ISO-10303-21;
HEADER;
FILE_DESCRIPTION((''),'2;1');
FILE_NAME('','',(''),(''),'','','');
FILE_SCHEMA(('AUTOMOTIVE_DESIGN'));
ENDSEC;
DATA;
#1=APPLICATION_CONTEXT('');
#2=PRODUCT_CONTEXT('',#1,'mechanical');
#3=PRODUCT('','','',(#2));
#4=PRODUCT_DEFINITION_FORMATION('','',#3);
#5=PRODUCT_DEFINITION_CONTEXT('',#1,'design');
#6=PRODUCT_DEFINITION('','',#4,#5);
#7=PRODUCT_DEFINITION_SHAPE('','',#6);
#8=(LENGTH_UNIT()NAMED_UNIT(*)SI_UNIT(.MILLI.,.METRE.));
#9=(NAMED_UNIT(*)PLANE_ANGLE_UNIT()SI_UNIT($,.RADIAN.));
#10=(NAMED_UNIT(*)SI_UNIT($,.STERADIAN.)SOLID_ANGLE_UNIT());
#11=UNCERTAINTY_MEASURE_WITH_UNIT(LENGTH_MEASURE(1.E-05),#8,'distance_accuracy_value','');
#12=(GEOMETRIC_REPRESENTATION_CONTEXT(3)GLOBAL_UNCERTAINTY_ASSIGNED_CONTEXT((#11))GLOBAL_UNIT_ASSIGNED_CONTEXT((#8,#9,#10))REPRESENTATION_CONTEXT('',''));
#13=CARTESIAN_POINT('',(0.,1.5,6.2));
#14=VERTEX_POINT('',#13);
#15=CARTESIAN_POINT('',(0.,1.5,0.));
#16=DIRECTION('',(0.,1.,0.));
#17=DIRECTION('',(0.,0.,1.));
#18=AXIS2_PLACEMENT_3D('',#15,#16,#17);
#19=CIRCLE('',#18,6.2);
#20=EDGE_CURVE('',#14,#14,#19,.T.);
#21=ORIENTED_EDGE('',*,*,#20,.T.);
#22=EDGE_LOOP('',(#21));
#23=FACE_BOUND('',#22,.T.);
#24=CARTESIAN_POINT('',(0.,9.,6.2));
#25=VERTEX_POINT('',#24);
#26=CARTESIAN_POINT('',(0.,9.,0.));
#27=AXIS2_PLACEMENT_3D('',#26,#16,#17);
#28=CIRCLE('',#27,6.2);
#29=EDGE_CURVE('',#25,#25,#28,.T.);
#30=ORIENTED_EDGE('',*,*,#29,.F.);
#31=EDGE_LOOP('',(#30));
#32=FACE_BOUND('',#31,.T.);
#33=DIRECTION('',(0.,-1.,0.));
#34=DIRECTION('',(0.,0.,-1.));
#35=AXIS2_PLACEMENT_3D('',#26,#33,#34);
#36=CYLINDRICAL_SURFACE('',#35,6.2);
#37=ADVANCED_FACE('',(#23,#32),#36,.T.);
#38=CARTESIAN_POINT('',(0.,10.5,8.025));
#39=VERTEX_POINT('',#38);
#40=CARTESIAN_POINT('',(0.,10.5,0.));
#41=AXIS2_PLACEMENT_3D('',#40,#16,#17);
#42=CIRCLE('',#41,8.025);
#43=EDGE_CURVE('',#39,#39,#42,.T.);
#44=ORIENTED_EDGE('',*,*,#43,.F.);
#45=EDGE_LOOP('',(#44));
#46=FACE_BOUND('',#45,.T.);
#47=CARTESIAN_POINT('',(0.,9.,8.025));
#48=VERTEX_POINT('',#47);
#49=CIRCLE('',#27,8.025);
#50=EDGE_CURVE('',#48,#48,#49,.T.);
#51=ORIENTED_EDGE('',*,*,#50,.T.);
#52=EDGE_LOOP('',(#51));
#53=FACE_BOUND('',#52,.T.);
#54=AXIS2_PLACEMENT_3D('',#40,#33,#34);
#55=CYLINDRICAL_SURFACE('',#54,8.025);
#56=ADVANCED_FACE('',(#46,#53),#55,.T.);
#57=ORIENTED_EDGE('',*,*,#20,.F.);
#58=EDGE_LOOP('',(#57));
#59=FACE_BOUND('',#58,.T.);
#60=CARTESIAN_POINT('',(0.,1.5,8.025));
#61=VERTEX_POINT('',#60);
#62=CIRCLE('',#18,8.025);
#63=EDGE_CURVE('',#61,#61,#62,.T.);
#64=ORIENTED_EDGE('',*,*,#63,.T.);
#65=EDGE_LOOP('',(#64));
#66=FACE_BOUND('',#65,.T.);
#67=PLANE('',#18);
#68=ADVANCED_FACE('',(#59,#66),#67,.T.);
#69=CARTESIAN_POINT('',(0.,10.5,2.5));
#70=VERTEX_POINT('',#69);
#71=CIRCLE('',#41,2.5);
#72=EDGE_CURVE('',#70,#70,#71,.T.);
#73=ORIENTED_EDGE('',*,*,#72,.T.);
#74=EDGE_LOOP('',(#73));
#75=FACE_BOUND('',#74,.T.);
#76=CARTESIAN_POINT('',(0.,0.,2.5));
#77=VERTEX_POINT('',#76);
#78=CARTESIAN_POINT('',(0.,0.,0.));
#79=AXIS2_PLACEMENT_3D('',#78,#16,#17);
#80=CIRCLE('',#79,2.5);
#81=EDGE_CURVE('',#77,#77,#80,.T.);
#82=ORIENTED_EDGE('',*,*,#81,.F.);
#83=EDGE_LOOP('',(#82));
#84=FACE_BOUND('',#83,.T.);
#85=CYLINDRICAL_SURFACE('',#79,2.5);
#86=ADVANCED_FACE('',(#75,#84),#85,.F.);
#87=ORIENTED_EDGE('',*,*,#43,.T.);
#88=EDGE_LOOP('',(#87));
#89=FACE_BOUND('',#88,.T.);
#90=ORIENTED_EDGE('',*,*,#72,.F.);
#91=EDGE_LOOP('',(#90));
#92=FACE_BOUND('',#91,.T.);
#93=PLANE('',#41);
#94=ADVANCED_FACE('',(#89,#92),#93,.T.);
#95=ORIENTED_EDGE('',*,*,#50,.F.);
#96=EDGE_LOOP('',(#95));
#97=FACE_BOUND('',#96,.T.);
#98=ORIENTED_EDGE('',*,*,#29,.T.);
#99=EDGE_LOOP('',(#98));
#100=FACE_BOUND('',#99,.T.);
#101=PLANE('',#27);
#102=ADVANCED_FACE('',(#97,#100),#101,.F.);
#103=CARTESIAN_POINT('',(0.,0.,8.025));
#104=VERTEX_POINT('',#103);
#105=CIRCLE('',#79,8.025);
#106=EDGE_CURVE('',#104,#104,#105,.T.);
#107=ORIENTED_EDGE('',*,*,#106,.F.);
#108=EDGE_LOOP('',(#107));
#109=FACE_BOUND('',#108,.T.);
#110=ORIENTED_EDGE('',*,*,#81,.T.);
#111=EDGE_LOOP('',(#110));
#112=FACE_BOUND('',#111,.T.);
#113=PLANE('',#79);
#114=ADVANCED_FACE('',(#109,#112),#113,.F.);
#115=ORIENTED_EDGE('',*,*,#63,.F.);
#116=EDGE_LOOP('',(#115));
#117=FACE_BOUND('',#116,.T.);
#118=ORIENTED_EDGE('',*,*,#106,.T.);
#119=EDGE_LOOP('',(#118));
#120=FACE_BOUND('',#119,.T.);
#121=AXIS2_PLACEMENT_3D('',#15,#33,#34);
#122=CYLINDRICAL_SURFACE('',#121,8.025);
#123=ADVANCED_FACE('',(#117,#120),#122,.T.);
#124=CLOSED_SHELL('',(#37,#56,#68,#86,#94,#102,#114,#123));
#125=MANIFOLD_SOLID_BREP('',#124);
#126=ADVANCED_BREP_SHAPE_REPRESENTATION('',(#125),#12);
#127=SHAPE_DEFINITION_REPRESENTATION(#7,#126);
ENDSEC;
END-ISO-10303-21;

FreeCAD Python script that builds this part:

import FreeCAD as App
import Part
import Sketcher

V = App.Vector
Q = App.Units.Quantity

doc = App.newDocument("Part")
body = doc.addObject("PartDesign::Body", "Body")

# Sketch on XZ plane
sketch1 = body.newObject("Sketcher::SketchObject", "Sketch")
sketch1.AttachmentSupport = (doc.getObject("XZ_Plane"), [""])
sketch1.MapMode = "FlatFace"
sketch1.addGeometry(Part.Circle(V(0, 0, 0), V(0, 0, 1), 8), False)
sketch1.addConstraint([
    Sketcher.Constraint("Coincident", 0, 3, -1, 1),
    Sketcher.Constraint("Diameter", 0, Q("16.05 mm")),
])
pad1 = body.newObject("PartDesign::Pad", "Pad")
pad1.Profile = sketch1
pad1.Length = 1.5
pad1.Reversed = True

# Sketch on XZ plane
sketch2 = body.newObject("Sketcher::SketchObject", "Sketch001")
sketch2.AttachmentSupport = (doc.getObject("XZ_Plane"), [""])
sketch2.MapMode = "FlatFace"
sketch2.AttachmentOffset = App.Placement(V(0, 0, -1.5), App.Rotation())
sketch2.addGeometry(Part.Circle(V(0, 0, 0), V(0, 0, 1), 6), False)
sketch2.addConstraint([
    Sketcher.Constraint("Coincident", 0, 3, -1, 1),
    Sketcher.Constraint("Diameter", 0, Q("12.4 mm")),
])
pad2 = body.newObject("PartDesign::Pad", "Pad001")
pad2.Profile = sketch2
pad2.Length = 7.5
pad2.Reversed = True

# Sketch on XZ plane
sketch3 = body.newObject("Sketcher::SketchObject", "Sketch002")
sketch3.AttachmentSupport = (doc.getObject("XZ_Plane"), [""])
sketch3.MapMode = "FlatFace"
sketch3.AttachmentOffset = App.Placement(V(0, 0, -9), App.Rotation())
sketch3.addGeometry(Part.Circle(V(0, 0, 0), V(0, 0, 1), 8), False)
sketch3.addConstraint([
    Sketcher.Constraint("Coincident", 0, 3, -1, 1),
    Sketcher.Constraint("Diameter", 0, Q("16.05 mm")),
])
pad3 = body.newObject("PartDesign::Pad", "Pad002")
pad3.Profile = sketch3
pad3.Length = 1.5
pad3.Reversed = True

# Sketch on XZ plane
sketch4 = body.newObject("Sketcher::SketchObject", "Sketch003")
sketch4.AttachmentSupport = (doc.getObject("XZ_Plane"), [""])
sketch4.MapMode = "FlatFace"
sketch4.AttachmentOffset = App.Placement(V(0, 0, -10.5), App.Rotation())
sketch4.addGeometry(Part.Circle(V(0, 0, 0), V(0, 0, 1), 2.5), False)
sketch4.addConstraint([
    Sketcher.Constraint("Coincident", 0, 3, -1, 1),
    Sketcher.Constraint("Diameter", 0, Q("5 mm")),
])
pocket1 = body.newObject("PartDesign::Pocket", "Pocket")
pocket1.Profile = sketch4
pocket1.Type = "ThroughAll"
pocket1.Reversed = True

doc.recompute()
